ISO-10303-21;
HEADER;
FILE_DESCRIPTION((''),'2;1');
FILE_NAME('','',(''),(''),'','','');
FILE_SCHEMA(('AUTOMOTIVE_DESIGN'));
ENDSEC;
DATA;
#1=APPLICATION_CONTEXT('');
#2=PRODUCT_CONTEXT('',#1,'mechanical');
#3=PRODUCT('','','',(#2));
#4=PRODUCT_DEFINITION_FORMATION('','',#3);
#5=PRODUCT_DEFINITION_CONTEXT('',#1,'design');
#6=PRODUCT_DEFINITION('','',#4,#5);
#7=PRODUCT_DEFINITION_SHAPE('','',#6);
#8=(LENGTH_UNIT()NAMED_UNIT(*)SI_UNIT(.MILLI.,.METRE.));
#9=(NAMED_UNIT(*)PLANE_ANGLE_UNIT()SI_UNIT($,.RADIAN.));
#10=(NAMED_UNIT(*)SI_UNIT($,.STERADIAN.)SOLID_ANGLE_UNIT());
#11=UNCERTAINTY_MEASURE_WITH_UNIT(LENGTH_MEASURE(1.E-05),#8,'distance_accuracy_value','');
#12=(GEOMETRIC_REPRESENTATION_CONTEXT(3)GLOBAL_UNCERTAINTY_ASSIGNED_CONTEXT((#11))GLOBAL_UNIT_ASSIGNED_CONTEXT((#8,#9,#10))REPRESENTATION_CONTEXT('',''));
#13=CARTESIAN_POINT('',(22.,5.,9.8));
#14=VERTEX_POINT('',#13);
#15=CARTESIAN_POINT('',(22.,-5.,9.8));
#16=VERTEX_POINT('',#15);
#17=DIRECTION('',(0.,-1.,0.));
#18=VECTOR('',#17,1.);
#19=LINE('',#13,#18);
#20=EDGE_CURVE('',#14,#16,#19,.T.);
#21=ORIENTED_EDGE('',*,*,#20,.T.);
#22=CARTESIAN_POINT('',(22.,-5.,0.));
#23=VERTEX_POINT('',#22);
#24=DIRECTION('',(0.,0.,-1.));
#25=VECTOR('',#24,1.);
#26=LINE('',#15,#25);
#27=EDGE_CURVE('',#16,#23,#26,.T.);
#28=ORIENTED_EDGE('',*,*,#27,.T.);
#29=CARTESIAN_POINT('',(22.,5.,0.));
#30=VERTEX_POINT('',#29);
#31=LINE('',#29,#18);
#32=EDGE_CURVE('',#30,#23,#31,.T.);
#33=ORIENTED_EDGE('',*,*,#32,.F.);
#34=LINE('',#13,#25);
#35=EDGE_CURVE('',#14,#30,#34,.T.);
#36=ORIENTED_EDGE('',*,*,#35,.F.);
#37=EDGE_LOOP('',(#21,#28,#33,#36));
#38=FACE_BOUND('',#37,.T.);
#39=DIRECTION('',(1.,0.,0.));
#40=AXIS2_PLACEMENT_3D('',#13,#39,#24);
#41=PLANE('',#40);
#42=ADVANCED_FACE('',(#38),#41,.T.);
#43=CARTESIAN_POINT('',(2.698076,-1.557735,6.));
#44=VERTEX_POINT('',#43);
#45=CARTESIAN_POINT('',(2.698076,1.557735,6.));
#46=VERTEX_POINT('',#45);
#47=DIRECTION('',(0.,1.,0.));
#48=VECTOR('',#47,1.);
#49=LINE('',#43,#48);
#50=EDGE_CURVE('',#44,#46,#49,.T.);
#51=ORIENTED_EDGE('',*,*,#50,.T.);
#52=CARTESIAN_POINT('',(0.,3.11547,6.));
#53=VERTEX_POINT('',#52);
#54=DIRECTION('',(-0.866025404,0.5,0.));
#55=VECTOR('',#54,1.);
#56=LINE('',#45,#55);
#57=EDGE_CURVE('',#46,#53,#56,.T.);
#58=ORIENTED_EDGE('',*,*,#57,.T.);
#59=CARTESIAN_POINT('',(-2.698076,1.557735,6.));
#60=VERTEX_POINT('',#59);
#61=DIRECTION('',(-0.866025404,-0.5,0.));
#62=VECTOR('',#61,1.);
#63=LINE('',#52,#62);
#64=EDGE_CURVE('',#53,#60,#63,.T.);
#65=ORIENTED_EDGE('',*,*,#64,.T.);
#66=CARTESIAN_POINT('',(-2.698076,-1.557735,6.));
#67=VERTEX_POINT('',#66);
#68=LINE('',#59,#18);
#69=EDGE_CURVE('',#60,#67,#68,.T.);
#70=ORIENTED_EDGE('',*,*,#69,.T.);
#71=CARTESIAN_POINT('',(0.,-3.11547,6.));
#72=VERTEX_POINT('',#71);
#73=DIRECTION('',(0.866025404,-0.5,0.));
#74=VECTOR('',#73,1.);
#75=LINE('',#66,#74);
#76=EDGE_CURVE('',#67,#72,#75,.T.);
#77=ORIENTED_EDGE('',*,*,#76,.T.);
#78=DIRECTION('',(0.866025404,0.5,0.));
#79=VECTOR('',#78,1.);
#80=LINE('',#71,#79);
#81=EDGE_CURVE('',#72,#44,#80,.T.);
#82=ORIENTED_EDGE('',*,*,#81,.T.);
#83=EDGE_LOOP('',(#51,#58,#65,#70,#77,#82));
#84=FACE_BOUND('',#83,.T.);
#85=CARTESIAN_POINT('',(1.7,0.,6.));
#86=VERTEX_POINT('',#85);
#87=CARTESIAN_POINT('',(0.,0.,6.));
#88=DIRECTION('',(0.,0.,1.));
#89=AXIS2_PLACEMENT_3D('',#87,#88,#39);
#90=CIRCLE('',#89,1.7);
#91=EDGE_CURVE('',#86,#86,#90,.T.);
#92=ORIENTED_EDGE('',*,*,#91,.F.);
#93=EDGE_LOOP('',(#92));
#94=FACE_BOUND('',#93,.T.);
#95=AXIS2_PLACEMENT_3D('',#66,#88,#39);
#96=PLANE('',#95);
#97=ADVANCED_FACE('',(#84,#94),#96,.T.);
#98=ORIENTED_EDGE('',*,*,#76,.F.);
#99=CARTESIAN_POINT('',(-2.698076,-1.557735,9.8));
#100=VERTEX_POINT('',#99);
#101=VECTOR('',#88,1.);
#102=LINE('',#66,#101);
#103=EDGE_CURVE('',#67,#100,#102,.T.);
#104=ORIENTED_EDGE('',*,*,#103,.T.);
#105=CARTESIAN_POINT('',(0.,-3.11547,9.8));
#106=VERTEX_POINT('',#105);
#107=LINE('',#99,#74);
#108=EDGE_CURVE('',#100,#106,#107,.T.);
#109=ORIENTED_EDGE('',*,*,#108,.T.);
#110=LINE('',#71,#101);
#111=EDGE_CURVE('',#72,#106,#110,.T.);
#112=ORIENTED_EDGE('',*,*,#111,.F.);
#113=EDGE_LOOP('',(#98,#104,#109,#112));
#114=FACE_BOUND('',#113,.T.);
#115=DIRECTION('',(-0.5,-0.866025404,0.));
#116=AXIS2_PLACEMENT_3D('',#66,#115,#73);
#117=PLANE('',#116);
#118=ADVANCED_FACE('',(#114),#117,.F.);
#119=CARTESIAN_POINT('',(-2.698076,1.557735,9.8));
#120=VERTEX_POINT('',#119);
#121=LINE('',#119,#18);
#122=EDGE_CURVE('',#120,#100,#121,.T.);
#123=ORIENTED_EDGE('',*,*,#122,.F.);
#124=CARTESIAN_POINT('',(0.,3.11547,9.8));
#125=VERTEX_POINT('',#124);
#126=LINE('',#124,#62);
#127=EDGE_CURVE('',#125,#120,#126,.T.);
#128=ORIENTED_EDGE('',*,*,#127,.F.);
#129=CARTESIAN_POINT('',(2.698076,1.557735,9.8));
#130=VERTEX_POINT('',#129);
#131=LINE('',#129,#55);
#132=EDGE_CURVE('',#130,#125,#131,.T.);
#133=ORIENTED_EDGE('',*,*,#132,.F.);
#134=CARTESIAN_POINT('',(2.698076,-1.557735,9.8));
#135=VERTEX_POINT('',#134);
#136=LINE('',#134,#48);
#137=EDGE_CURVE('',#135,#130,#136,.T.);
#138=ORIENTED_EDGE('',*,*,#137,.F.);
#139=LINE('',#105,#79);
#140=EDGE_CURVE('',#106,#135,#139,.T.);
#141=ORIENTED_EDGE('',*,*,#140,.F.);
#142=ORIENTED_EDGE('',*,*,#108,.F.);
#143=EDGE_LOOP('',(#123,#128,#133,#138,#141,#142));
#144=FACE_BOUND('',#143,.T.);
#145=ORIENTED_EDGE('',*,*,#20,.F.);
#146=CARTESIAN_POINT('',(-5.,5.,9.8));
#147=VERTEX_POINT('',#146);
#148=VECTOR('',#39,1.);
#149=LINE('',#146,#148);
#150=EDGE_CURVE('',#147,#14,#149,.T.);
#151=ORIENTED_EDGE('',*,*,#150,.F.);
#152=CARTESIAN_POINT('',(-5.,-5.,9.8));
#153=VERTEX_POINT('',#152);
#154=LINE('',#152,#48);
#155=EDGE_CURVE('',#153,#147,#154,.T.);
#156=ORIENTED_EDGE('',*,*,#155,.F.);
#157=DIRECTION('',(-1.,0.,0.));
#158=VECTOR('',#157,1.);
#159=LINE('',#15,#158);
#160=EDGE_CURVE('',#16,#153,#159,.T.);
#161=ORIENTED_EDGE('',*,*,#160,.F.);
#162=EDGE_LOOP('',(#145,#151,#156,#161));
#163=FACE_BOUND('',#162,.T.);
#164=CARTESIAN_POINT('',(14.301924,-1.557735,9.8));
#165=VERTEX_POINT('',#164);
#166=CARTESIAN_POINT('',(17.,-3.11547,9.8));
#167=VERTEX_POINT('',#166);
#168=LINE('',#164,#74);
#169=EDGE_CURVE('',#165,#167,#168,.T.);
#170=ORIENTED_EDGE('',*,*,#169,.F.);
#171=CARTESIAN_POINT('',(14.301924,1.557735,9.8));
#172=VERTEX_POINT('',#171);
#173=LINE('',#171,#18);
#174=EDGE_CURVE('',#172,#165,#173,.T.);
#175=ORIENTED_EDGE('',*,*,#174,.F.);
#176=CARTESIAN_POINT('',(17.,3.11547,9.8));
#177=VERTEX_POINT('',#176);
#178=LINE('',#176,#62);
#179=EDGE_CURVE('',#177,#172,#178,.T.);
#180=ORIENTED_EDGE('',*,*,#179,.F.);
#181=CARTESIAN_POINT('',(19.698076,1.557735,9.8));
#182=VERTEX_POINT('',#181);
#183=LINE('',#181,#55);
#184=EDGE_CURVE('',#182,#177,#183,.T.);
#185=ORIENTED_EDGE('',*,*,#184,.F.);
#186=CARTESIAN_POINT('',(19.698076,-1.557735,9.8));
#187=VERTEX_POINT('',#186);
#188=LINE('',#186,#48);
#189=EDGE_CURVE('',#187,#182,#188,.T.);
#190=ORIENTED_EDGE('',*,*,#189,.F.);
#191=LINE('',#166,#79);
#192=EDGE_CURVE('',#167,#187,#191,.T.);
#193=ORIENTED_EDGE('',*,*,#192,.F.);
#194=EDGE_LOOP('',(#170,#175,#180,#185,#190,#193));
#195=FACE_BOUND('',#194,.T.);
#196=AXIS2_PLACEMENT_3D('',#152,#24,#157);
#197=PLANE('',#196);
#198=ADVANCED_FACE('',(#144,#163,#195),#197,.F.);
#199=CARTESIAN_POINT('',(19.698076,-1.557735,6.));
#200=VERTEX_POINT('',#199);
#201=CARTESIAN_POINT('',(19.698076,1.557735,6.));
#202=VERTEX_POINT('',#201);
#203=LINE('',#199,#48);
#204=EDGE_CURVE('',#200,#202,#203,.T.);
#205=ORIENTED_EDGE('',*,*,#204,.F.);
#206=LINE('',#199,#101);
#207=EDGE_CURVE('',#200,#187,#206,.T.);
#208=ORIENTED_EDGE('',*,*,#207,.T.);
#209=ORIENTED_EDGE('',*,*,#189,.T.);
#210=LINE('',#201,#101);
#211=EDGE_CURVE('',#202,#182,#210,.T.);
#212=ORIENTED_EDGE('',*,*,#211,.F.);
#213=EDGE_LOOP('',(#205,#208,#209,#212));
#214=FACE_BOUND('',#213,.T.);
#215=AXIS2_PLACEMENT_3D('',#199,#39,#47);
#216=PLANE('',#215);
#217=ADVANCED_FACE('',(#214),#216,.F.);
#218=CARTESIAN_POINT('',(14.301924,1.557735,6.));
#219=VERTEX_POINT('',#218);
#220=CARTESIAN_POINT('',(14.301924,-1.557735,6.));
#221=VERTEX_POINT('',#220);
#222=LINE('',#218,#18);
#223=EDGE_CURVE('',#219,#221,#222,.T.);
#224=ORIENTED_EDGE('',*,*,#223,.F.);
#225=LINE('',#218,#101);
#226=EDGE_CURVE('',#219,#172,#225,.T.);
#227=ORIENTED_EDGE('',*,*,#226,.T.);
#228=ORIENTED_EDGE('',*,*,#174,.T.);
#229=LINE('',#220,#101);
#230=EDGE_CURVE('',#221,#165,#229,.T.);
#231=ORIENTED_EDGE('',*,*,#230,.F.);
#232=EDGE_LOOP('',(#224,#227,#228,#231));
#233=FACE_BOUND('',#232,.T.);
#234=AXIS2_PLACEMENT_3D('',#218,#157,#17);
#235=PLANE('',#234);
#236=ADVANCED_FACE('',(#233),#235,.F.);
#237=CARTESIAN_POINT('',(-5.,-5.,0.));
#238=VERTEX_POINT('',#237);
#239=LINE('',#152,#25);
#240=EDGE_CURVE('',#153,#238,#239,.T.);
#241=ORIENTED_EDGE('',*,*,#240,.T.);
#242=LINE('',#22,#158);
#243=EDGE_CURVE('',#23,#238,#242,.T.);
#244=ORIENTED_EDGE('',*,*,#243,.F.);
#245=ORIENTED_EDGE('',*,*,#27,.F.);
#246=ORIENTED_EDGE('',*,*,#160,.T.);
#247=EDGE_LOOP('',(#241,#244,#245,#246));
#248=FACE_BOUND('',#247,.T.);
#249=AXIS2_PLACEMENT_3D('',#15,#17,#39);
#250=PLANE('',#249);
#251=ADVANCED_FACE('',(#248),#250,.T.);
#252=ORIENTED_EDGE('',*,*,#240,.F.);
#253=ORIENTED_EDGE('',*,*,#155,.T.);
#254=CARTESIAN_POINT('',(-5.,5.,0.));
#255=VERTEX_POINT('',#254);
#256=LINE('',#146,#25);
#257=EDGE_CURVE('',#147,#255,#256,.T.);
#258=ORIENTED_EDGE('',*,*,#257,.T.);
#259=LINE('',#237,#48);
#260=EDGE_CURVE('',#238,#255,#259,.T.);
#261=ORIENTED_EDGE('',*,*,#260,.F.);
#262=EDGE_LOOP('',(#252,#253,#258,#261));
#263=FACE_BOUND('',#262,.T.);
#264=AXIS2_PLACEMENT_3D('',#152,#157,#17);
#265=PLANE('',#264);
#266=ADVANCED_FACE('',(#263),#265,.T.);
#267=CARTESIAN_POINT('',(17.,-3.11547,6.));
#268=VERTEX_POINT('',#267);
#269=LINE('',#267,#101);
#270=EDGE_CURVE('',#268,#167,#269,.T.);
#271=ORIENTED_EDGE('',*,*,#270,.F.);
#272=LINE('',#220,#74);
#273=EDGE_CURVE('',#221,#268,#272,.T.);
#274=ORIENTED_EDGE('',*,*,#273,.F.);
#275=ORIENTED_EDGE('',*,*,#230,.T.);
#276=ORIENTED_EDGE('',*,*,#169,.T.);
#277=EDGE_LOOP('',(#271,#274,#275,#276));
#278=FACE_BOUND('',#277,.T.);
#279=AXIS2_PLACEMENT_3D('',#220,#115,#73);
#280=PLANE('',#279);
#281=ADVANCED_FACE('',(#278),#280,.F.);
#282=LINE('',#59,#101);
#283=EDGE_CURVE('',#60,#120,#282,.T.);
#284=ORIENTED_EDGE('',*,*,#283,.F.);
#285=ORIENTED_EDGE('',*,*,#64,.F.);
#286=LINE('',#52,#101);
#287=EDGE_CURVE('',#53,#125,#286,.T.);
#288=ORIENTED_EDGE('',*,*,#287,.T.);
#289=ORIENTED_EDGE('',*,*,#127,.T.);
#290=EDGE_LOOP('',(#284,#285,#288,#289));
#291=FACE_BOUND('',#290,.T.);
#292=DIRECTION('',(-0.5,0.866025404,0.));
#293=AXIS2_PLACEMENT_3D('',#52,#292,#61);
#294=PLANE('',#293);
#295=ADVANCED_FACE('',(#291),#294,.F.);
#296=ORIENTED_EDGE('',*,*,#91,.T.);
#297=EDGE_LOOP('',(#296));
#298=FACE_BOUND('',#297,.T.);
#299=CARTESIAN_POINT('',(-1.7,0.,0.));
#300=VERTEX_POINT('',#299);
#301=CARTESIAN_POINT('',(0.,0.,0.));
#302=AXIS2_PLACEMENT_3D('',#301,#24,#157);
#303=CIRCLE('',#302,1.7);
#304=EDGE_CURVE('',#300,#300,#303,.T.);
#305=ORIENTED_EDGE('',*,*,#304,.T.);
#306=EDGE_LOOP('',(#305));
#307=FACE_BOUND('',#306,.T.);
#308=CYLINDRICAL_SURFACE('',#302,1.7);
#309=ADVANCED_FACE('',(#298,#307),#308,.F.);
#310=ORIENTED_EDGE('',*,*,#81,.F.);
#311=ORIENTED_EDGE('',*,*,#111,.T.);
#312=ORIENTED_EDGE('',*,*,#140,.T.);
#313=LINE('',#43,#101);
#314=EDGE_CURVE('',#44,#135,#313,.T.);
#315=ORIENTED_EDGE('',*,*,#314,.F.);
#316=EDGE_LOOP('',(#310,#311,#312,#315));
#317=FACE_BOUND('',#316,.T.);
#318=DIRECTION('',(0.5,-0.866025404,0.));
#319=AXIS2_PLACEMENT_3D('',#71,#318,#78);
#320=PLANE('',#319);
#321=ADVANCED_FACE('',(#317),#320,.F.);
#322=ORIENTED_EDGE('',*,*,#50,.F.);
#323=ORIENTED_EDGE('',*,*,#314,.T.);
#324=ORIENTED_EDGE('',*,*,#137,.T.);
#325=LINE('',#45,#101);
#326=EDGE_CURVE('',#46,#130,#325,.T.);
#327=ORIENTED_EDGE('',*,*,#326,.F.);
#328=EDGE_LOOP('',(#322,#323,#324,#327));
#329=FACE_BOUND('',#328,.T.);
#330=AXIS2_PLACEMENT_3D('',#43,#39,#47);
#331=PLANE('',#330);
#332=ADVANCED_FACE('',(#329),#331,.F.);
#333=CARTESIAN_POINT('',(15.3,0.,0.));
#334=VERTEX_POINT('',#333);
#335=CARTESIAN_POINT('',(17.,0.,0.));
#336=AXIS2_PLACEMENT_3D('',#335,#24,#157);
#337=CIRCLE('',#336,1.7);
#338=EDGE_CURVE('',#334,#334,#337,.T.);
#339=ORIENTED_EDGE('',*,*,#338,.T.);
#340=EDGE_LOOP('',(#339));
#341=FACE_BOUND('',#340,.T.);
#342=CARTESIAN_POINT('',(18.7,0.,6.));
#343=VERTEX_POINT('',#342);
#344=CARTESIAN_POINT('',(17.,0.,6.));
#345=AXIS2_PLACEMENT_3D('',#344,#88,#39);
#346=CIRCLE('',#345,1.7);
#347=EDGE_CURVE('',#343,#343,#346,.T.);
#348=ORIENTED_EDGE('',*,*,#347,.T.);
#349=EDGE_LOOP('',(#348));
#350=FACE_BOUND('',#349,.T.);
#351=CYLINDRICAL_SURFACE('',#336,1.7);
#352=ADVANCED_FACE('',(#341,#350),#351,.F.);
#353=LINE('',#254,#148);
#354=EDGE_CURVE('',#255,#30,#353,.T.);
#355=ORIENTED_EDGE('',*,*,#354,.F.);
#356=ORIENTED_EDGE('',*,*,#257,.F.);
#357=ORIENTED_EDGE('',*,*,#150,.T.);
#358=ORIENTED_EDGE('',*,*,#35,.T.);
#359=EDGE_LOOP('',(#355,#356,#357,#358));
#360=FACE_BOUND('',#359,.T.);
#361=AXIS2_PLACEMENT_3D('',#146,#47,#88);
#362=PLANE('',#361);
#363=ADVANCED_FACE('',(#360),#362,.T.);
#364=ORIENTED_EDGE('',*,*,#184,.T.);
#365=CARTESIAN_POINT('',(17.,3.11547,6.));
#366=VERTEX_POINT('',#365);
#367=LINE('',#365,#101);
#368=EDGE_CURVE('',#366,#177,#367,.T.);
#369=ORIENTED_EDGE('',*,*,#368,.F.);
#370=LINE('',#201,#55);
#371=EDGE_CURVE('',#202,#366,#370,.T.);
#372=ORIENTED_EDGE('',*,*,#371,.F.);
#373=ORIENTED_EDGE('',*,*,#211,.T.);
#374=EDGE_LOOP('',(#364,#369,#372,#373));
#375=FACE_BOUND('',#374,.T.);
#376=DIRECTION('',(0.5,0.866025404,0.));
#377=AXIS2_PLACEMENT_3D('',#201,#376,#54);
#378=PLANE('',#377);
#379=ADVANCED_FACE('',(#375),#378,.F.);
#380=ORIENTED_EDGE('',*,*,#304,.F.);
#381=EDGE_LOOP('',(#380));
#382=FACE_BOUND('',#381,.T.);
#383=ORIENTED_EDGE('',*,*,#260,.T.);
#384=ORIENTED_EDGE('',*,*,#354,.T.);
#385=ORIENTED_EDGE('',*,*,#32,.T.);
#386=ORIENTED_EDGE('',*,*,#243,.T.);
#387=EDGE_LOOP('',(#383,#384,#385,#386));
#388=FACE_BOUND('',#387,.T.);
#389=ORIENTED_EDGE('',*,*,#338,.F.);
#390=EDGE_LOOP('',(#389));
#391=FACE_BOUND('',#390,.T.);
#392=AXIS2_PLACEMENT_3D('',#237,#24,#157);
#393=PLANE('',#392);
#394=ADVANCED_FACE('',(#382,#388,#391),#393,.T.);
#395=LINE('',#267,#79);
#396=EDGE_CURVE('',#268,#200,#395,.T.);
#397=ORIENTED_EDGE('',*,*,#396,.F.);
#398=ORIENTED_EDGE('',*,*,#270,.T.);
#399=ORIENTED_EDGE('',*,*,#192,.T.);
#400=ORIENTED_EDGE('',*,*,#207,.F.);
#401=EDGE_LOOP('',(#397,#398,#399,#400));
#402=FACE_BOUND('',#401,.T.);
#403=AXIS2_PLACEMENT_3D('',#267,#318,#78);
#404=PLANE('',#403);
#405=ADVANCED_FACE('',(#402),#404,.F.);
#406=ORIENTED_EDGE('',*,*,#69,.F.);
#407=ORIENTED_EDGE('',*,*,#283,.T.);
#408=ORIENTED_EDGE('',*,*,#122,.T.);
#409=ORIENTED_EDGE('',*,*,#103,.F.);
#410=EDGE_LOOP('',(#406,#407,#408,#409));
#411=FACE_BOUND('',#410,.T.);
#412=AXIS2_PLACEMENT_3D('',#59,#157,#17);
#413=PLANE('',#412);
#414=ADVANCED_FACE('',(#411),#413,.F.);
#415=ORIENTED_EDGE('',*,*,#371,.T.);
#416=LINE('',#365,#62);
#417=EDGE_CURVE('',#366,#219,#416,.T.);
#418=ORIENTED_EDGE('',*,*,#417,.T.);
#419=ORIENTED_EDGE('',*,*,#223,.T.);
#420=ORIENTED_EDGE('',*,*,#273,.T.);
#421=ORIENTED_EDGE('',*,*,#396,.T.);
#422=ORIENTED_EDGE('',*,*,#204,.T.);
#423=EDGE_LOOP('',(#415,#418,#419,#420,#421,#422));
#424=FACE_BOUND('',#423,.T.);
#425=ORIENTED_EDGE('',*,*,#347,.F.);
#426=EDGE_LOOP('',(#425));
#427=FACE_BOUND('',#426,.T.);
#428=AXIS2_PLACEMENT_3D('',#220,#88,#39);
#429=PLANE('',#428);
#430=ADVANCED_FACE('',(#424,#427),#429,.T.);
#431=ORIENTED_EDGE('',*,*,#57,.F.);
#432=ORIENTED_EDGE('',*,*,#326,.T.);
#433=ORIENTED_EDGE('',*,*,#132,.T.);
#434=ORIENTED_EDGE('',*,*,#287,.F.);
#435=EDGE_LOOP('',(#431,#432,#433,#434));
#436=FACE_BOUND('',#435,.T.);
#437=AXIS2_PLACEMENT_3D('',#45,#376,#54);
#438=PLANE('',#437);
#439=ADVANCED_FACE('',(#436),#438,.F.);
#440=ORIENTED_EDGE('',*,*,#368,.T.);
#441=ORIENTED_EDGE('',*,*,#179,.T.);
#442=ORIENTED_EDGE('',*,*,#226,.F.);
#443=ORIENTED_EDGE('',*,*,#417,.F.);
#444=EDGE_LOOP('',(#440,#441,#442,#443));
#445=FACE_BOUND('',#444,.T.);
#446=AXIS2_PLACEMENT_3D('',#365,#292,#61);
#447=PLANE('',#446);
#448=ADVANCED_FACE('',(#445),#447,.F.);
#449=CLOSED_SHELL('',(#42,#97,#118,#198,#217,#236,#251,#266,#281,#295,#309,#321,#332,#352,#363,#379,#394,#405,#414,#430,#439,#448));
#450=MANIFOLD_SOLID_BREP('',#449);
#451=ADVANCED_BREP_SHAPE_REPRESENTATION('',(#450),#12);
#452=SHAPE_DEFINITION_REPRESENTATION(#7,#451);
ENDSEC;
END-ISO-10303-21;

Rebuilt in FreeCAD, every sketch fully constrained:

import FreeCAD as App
import Part
import Sketcher

V = App.Vector
Q = App.Units.Quantity


def add_polygon(sketch, points):
    """Adds a closed chain of lines whose ends are joined by coincident constraints."""
    first, n = sketch.GeometryCount, len(points)
    for a, b in zip(points, points[1:] + points[:1]):
        sketch.addGeometry(Part.LineSegment(App.Vector(*a, 0), App.Vector(*b, 0)), False)
    for i in range(n):
        sketch.addConstraint(Sketcher.Constraint("Coincident", first + i, 2, first + (i + 1) % n, 1))

doc = App.newDocument("Part")
body = doc.addObject("PartDesign::Body", "Body")

sketch1 = body.newObject("Sketcher::SketchObject", "Sketch")
sketch1.AttachmentSupport = (doc.getObject("XY_Plane"), [""])
sketch1.MapMode = "FlatFace"
add_polygon(sketch1, [(22, 5), (22, -5), (-5, -5), (-5, 5)])
sketch1.addConstraint(Sketcher.Constraint("Vertical", 0))
sketch1.addConstraint(Sketcher.Constraint("Horizontal", 1))
sketch1.addConstraint(Sketcher.Constraint("Vertical", 2))
sketch1.addConstraint(Sketcher.Constraint("Horizontal", 3))
sketch1.addConstraint(Sketcher.Constraint("DistanceX", 1, 2, 1, 1, Q("27 mm")))
sketch1.addConstraint(Sketcher.Constraint("DistanceY", 0, 2, 0, 1, Q("10 mm")))
sketch1.addConstraint(Sketcher.Constraint("DistanceX", -1, 1, 0, 2, Q("22 mm")))
sketch1.addConstraint(Sketcher.Constraint("DistanceY", 0, 2, -1, 1, Q("5 mm")))
pad1 = body.newObject("PartDesign::Pad", "Pad")
pad1.Profile = sketch1
pad1.Length = 9.8

sketch2 = body.newObject("Sketcher::SketchObject", "Sketch001")
sketch2.AttachmentSupport = (doc.getObject("XY_Plane"), [""])
sketch2.MapMode = "FlatFace"
sketch2.AttachmentOffset = App.Placement(V(0, 0, 9.8), App.Rotation())
add_polygon(sketch2, [(-2.7, -1.6), (0, -3.1), (2.7, -1.6), (2.7, 1.6), (0, 3.1), (-2.7, 1.6)])
sketch2.addConstraint(Sketcher.Constraint("Vertical", 2))
sketch2.addConstraint(Sketcher.Constraint("Vertical", 5))
sketch2.addConstraint(Sketcher.Constraint("Symmetric", 0, 2, 3, 2, -1, 1))
sketch2.addConstraint(Sketcher.Constraint("Symmetric", 1, 2, 4, 2, -1, 1))
sketch2.addConstraint(Sketcher.Constraint("PointOnObject", 0, 2, -2))
sketch2.addConstraint(Sketcher.Constraint("Parallel", 0, 3))
sketch2.addConstraint(Sketcher.Constraint("Horizontal", 2, 2, 4, 2))
sketch2.addConstraint(Sketcher.Constraint("Angle", 0, Q("-30 deg")))
sketch2.addConstraint(Sketcher.Constraint("DistanceY", 2, 1, 2, 2, Q("3.11547 mm")))
sketch2.addConstraint(Sketcher.Constraint("Distance", 0, Q("3.11547 mm")))
pocket1 = body.newObject("PartDesign::Pocket", "Pocket")
pocket1.Profile = sketch2
pocket1.Length = 3.8

sketch3 = body.newObject("Sketcher::SketchObject", "Sketch002")
sketch3.AttachmentSupport = (doc.getObject("XY_Plane"), [""])
sketch3.MapMode = "FlatFace"
sketch3.AttachmentOffset = App.Placement(V(0, 0, 9.8), App.Rotation())
add_polygon(sketch3, [(14.3, -1.6), (17, -3.1), (19.7, -1.6), (19.7, 1.6), (17, 3.1), (14.3, 1.6)])
sketch3.addConstraint(Sketcher.Constraint("Vertical", 2))
sketch3.addConstraint(Sketcher.Constraint("Vertical", 5))
sketch3.addConstraint(Sketcher.Constraint("Symmetric", 0, 2, 3, 2, -1))
sketch3.addConstraint(Sketcher.Constraint("Parallel", 0, 3))
sketch3.addConstraint(Sketcher.Constraint("Parallel", 1, 4))
sketch3.addConstraint(Sketcher.Constraint("Horizontal", 2, 2, 4, 2))
sketch3.addConstraint(Sketcher.Constraint("Horizontal", 1, 2, 5, 2))
sketch3.addConstraint(Sketcher.Constraint("Angle", 0, Q("-30 deg")))
sketch3.addConstraint(Sketcher.Constraint("DistanceX", -1, 1, 0, 2, Q("17 mm")))
sketch3.addConstraint(Sketcher.Constraint("DistanceY", 2, 1, 2, 2, Q("3.11547 mm")))
sketch3.addConstraint(Sketcher.Constraint("Distance", 0, Q("3.11547 mm")))
pocket2 = body.newObject("PartDesign::Pocket", "Pocket001")
pocket2.Profile = sketch3
pocket2.Length = 3.8

sketch4 = body.newObject("Sketcher::SketchObject", "Sketch003")
sketch4.AttachmentSupport = (doc.getObject("XY_Plane"), [""])
sketch4.MapMode = "FlatFace"
sketch4.addGeometry(Part.Circle(V(0, 0, 0), V(0, 0, 1), 1.7), False)
sketch4.addConstraint(Sketcher.Constraint("Coincident", 0, 3, -1, 1))
sketch4.addConstraint(Sketcher.Constraint("Diameter", 0, Q("3.4 mm")))
doc.recompute()
hole = body.newObject("PartDesign::Hole", "Hole")
hole.Profile = sketch4
hole.ThreadType = "None"
hole.Diameter = 3.4
hole.DepthType = "Dimension"
hole.Depth = 9.8
hole.DrillPoint = "Flat"
hole.Reversed = True

sketch5 = body.newObject("Sketcher::SketchObject", "Sketch004")
sketch5.AttachmentSupport = (doc.getObject("XY_Plane"), [""])
sketch5.MapMode = "FlatFace"
sketch5.addGeometry(Part.Circle(V(17, 0, 0), V(0, 0, 1), 1.7), False)
sketch5.addConstraint(Sketcher.Constraint("PointOnObject", 0, 3, -1))
sketch5.addConstraint(Sketcher.Constraint("Diameter", 0, Q("3.4 mm")))
sketch5.addConstraint(Sketcher.Constraint("DistanceX", -1, 1, 0, 3, Q("17 mm")))
doc.recompute()
hole2 = body.newObject("PartDesign::Hole", "Hole001")
hole2.Profile = sketch5
hole2.ThreadType = "None"
hole2.Diameter = 3.4
hole2.DepthType = "Dimension"
hole2.Depth = 9.8
hole2.DrillPoint = "Flat"
hole2.Reversed = True

doc.recompute()
